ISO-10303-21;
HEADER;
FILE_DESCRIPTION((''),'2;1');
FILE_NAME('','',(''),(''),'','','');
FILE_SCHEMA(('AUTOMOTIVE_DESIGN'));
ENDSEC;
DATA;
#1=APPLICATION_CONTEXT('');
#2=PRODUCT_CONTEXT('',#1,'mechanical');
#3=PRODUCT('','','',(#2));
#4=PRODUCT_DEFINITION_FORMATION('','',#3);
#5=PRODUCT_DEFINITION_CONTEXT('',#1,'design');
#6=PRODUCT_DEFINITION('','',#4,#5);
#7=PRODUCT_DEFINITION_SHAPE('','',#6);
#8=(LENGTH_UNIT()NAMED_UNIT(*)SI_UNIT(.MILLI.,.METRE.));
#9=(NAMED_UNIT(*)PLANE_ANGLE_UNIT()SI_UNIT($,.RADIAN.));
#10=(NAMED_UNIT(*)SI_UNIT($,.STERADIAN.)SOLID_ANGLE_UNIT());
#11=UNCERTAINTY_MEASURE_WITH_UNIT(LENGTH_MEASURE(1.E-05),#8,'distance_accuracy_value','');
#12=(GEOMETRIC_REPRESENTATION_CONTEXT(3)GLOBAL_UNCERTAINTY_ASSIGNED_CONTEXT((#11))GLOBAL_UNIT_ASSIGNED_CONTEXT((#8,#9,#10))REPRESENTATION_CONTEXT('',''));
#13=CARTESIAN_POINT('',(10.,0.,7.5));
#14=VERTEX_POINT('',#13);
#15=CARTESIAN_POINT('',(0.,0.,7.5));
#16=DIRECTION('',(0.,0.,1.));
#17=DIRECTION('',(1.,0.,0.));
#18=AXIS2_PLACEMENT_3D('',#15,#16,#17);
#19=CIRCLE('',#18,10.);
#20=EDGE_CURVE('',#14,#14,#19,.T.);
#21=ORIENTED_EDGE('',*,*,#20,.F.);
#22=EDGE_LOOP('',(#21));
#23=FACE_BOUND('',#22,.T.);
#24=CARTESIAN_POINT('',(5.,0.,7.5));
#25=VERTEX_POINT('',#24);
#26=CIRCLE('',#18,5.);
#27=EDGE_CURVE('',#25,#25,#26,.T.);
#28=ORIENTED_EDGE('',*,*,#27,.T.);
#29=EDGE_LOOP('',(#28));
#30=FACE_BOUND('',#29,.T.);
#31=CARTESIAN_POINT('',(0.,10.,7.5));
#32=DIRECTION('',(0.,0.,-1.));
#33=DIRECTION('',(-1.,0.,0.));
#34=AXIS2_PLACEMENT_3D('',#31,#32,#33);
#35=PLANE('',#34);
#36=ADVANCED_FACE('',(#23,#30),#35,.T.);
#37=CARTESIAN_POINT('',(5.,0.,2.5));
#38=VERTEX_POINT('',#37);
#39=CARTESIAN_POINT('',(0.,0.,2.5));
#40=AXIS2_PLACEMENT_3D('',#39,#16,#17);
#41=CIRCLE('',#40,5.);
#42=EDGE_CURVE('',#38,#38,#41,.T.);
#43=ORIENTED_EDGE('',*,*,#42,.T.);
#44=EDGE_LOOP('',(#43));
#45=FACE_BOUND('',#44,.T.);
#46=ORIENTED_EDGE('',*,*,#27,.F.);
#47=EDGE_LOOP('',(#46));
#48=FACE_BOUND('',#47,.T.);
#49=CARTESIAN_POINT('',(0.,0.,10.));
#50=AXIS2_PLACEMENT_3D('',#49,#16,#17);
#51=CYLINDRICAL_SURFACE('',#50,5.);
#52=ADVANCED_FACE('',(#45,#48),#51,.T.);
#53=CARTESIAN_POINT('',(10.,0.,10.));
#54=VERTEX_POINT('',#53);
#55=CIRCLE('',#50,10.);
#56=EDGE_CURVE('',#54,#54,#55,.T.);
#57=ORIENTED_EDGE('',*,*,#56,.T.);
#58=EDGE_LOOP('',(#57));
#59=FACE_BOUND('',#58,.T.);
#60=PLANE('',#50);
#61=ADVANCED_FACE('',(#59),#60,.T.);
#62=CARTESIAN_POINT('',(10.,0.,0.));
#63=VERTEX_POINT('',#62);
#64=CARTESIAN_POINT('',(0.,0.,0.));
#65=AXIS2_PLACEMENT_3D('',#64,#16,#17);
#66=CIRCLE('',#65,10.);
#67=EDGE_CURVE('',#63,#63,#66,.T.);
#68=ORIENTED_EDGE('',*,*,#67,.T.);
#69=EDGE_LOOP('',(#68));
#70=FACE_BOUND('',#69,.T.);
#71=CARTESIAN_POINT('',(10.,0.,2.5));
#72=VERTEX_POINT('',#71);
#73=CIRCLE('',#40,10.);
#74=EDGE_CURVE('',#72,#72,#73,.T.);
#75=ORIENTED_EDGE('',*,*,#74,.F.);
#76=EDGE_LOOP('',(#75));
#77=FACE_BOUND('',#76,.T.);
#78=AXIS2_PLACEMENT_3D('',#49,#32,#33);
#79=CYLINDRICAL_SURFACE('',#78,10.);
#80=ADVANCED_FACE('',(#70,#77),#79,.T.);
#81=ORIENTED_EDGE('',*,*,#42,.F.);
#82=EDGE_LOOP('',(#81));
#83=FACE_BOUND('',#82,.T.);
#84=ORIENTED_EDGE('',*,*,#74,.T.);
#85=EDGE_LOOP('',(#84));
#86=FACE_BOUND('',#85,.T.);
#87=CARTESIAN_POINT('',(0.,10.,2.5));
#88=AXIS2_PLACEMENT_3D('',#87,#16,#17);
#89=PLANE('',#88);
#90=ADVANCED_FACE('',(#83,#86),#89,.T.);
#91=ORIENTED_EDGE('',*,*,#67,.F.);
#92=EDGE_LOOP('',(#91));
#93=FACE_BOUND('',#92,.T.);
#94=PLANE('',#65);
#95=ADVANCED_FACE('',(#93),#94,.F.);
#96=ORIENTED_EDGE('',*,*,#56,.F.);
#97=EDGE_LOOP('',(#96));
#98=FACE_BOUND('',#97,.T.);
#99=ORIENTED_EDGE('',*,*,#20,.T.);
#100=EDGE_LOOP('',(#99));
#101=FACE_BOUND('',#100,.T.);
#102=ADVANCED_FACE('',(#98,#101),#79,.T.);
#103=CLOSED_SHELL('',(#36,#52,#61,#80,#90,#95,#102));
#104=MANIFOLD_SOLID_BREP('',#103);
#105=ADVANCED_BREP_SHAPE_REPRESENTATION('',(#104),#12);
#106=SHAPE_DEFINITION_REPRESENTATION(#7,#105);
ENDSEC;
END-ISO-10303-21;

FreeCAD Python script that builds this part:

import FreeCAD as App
import Part
import Sketcher

V = App.Vector


def add_polygon(sketch, points):
    """Adds a closed chain of lines whose ends are joined by coincident constraints."""
    first, n = sketch.GeometryCount, len(points)
    for a, b in zip(points, points[1:] + points[:1]):
        sketch.addGeometry(Part.LineSegment(App.Vector(*a, 0), App.Vector(*b, 0)), False)
    for i in range(n):
        sketch.addConstraint(Sketcher.Constraint("Coincident", first + i, 2, first + (i + 1) % n, 1))

doc = App.newDocument("Part")
body = doc.addObject("PartDesign::Body", "Body")

# Sketch on XY plane
sketch1 = body.newObject("Sketcher::SketchObject", "Sketch")
sketch1.AttachmentSupport = (doc.getObject("XY_Plane"), [""])
sketch1.MapMode = "FlatFace"
sketch1.addGeometry(Part.Circle(V(0, 0, 0), V(0, 0, 1), 10), False)
sketch1.addConstraint(Sketcher.Constraint("Coincident", 0, 3, -1, 1))
sketch1.addConstraint(Sketcher.Constraint("Diameter", 0, 20.0))
pad1 = body.newObject("PartDesign::Pad", "Pad")
pad1.Profile = sketch1
pad1.Length = 10

# Sketch on YZ plane
sketch2 = body.newObject("Sketcher::SketchObject", "Sketch001")
sketch2.AttachmentSupport = (doc.getObject("YZ_Plane"), [""])
sketch2.MapMode = "FlatFace"
add_polygon(sketch2, [(10, 8), (5, 8), (5, 2), (10, 2)])  # lines 0-3
sketch2.addConstraint(Sketcher.Constraint("Horizontal", 0))
sketch2.addConstraint(Sketcher.Constraint("Vertical", 1))
sketch2.addConstraint(Sketcher.Constraint("Horizontal", 2))
sketch2.addConstraint(Sketcher.Constraint("Vertical", 3))
sketch2.addConstraint(Sketcher.Constraint("Equal", 2, 1))
sketch2.addConstraint(Sketcher.Constraint("DistanceX", 0, 2, 0, 1, 5.0))
sketch2.addConstraint(Sketcher.Constraint("DistanceX", -1, 1, 0, 2, 5.0))
sketch2.addConstraint(Sketcher.Constraint("DistanceY", -1, 1, 0, 2, 7.5))
groove = body.newObject("PartDesign::Groove", "Groove")
groove.Profile = sketch2
groove.ReferenceAxis = (sketch2, ["V_Axis"])
groove.Angle = 360

doc.recompute()
